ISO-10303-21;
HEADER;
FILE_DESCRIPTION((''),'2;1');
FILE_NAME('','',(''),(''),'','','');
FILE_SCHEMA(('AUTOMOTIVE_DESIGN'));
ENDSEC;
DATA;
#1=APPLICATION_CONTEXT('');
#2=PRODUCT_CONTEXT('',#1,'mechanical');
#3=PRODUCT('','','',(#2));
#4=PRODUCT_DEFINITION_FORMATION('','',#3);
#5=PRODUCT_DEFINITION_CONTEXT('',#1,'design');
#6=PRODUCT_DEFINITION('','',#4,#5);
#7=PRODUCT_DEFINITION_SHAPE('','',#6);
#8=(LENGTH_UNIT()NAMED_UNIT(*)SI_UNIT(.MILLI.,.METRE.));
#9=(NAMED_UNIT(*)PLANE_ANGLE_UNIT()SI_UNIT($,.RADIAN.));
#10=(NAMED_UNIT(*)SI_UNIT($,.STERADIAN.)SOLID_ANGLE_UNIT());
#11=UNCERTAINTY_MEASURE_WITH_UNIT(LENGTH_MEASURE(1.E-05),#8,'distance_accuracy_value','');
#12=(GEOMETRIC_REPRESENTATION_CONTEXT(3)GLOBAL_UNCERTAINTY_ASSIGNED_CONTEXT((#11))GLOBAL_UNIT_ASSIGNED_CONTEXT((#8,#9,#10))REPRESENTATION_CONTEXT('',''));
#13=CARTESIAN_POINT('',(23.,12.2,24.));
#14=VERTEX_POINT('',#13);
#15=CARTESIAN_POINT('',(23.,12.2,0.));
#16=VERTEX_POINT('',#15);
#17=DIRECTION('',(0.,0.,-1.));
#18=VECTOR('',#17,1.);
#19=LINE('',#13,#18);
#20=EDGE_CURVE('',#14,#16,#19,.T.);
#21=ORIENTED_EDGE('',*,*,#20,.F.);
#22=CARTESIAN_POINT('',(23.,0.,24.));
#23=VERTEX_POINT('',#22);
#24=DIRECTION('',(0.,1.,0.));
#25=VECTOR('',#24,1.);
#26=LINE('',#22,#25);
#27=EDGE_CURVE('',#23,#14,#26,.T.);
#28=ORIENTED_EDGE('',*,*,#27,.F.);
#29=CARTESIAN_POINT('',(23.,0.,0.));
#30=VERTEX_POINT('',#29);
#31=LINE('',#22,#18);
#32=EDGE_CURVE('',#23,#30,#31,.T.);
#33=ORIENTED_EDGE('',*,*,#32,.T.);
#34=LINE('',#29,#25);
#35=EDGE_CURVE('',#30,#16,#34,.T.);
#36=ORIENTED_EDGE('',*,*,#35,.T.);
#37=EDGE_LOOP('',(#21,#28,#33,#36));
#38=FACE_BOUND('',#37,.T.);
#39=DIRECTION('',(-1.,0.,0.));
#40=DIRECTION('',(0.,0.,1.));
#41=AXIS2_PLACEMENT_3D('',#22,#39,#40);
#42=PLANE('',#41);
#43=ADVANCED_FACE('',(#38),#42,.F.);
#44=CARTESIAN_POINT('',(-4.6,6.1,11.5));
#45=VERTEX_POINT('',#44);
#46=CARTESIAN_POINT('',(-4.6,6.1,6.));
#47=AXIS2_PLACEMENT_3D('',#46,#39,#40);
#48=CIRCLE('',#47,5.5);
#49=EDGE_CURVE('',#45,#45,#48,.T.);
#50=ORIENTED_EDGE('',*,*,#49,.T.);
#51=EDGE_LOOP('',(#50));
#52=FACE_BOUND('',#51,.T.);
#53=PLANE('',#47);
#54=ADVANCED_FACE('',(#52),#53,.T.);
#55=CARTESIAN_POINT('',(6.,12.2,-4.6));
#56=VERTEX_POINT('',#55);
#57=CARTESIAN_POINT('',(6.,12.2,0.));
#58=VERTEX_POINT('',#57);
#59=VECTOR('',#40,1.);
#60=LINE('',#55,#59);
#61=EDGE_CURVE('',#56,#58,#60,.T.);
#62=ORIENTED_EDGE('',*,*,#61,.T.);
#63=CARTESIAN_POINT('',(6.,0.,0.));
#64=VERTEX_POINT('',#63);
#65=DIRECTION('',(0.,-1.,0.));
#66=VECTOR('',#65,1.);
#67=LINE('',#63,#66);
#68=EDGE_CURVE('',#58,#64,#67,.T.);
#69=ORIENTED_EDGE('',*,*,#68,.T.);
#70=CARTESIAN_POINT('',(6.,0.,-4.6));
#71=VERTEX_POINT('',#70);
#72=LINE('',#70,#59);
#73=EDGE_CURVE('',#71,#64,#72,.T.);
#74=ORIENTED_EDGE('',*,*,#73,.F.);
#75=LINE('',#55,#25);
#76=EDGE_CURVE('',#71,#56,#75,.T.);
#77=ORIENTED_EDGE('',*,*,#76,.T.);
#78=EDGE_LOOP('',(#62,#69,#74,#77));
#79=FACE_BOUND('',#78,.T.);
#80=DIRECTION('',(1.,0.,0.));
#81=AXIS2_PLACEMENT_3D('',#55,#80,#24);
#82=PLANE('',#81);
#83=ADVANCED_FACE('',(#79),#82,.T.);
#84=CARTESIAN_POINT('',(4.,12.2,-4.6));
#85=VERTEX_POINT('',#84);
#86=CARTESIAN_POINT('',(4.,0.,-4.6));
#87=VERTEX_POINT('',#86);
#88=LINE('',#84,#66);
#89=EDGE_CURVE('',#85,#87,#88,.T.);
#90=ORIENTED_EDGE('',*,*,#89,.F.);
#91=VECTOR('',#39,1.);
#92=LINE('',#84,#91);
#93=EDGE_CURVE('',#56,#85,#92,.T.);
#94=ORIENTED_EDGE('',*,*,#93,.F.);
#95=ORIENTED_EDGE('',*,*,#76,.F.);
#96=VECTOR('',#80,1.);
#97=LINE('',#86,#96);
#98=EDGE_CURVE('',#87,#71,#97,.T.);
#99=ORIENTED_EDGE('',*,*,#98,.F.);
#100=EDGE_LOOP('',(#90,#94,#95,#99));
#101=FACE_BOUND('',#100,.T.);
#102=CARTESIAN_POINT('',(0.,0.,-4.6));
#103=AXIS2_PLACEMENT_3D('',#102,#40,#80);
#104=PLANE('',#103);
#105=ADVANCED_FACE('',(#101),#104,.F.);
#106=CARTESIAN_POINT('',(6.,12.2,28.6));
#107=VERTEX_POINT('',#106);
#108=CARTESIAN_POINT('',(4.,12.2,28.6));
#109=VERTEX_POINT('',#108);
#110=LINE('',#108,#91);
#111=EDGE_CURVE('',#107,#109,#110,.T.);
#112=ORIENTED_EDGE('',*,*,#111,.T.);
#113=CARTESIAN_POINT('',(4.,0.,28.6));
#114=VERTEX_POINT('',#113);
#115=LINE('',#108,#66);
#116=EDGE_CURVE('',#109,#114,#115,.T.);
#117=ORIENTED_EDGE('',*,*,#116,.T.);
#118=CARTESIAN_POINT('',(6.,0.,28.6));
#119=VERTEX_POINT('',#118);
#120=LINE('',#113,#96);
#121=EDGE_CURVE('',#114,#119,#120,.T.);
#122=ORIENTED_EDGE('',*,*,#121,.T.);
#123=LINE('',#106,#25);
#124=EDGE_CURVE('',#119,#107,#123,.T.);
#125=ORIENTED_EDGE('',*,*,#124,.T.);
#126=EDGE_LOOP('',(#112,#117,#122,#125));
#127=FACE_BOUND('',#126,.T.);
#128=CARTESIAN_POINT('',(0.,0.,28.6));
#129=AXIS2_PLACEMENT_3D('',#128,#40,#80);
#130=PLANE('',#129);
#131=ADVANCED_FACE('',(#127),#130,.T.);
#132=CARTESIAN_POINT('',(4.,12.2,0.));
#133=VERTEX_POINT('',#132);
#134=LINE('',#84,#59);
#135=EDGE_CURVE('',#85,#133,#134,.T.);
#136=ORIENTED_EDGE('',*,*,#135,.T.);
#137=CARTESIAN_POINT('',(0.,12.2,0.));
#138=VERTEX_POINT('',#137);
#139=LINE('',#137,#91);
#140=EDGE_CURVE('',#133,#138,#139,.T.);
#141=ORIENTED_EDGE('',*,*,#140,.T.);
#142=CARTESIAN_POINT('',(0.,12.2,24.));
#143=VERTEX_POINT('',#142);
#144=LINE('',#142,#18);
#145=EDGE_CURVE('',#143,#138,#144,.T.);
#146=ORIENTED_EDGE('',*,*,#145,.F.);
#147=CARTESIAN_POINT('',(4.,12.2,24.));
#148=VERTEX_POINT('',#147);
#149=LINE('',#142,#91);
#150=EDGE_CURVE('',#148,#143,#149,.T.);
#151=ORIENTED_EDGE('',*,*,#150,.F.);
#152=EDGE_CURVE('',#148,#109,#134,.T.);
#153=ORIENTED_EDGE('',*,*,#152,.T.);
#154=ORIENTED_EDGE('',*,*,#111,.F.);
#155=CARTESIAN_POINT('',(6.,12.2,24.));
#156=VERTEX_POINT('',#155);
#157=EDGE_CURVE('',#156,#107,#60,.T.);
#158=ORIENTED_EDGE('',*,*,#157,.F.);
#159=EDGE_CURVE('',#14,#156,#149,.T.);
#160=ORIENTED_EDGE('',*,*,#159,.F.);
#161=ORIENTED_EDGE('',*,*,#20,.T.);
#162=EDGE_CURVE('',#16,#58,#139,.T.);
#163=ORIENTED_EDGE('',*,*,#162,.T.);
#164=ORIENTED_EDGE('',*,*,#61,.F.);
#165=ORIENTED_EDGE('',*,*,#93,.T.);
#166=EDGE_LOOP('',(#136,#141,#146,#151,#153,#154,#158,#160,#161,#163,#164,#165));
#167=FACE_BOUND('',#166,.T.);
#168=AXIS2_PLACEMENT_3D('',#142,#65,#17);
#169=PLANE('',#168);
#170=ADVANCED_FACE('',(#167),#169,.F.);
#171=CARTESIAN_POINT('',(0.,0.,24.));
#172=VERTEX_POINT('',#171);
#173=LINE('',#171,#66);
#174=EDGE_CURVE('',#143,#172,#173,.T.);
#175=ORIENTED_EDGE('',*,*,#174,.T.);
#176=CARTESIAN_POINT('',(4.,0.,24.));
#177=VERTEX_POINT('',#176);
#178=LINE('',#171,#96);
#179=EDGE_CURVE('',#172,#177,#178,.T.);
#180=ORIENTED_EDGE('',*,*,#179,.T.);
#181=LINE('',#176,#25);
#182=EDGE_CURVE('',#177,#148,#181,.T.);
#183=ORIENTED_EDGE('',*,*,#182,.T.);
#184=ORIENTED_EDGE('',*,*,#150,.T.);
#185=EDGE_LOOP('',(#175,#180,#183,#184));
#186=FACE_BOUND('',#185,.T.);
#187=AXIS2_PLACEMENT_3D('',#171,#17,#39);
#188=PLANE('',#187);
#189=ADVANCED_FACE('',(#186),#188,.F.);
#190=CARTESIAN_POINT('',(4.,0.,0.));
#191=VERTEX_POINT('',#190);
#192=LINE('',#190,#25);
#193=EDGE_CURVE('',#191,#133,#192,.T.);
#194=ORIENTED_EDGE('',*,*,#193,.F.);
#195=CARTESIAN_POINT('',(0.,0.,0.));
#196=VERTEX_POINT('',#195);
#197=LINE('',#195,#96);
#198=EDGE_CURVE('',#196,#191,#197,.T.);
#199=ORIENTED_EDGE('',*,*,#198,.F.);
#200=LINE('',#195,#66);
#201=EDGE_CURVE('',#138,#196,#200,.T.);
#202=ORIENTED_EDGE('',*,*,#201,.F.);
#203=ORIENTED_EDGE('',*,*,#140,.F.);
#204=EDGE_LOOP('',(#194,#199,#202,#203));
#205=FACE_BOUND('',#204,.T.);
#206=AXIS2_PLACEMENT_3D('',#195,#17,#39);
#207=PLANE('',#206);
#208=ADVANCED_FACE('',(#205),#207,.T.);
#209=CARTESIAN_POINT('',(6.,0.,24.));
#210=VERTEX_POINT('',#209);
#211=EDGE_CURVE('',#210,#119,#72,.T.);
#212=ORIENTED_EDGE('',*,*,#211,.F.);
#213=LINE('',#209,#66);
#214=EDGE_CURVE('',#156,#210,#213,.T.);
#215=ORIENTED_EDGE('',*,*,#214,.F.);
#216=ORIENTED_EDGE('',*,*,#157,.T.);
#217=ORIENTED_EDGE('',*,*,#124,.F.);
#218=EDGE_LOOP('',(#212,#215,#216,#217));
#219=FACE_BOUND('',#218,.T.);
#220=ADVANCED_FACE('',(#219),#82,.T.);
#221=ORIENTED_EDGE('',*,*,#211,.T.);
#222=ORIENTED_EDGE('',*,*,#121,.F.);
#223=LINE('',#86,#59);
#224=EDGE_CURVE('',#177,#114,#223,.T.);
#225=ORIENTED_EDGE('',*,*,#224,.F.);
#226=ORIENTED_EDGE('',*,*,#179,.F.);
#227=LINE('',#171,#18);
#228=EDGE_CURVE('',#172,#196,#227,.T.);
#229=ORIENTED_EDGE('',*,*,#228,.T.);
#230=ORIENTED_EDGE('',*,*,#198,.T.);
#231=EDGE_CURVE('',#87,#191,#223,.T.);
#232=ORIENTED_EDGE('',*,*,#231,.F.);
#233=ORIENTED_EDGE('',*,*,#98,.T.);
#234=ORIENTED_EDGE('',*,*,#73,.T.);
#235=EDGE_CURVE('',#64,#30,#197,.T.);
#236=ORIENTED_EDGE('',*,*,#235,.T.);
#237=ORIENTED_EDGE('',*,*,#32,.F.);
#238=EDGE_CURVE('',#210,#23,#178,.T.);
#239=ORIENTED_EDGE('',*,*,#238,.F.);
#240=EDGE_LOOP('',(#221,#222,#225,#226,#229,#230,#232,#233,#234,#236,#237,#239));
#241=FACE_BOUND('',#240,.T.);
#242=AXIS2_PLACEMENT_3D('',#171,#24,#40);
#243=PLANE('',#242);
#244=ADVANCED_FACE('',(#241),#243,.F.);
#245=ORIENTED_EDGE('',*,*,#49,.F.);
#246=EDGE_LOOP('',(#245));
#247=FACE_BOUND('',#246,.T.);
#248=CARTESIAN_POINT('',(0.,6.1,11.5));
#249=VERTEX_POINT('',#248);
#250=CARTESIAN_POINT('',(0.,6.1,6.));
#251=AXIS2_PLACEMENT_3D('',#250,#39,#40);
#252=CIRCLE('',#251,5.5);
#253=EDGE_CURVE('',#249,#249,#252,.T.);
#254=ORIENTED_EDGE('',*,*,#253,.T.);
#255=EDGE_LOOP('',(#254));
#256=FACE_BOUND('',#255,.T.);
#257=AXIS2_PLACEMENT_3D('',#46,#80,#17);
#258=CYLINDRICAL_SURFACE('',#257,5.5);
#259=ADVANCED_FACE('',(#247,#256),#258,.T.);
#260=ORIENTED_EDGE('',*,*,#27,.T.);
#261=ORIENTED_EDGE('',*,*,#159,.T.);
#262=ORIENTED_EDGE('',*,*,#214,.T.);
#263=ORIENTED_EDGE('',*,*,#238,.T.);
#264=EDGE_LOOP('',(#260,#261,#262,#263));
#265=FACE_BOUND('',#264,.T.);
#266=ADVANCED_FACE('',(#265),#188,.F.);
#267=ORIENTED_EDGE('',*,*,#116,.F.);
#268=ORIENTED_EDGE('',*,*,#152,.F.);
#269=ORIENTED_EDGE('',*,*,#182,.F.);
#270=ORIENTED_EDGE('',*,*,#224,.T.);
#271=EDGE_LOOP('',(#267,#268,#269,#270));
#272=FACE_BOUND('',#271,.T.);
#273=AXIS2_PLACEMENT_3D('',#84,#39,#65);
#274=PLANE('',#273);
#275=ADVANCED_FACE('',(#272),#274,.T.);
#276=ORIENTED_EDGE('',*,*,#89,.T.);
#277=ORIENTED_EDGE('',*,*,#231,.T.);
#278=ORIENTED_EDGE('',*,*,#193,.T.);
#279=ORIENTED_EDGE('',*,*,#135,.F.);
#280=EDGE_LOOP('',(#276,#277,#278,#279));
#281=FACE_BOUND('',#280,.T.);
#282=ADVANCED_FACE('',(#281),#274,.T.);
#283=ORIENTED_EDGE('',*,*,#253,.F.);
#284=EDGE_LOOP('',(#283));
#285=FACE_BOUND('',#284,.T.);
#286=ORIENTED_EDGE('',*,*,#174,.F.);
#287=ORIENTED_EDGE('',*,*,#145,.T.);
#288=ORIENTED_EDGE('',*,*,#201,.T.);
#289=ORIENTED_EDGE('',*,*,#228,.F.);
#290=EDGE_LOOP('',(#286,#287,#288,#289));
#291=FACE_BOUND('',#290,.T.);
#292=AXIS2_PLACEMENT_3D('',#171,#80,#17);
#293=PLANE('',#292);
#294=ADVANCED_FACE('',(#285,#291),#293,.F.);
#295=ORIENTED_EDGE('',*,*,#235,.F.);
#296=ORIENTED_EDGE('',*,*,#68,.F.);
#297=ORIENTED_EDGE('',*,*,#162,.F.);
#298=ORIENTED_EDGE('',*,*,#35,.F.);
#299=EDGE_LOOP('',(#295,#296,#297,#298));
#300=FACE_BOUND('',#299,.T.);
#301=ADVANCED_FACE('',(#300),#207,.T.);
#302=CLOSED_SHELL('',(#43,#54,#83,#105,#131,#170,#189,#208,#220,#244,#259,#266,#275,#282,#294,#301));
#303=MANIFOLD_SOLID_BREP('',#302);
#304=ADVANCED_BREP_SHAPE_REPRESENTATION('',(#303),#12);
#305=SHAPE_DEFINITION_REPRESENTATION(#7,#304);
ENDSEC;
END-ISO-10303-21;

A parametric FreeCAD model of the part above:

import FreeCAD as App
import Part
import Sketcher
from FreeCAD import Vector
Q = App.Units.Quantity


def add_polygon(sketch, points):
    """Adds a closed chain of lines whose ends are joined by coincident constraints."""
    first, n = sketch.GeometryCount, len(points)
    for a, b in zip(points, points[1:] + points[:1]):
        sketch.addGeometry(Part.LineSegment(App.Vector(*a, 0), App.Vector(*b, 0)), False)
    for i in range(n):
        sketch.addConstraint(Sketcher.Constraint("Coincident", first + i, 2, first + (i + 1) % n, 1))

doc = App.newDocument("Part")
params = doc.addObject("Spreadsheet::Sheet", "Params")
for row, (alias, value) in enumerate([
    ("sketch1_width", "23 mm"),
    ("sketch1_height", "12.2 mm"),
    ("pad1_length", "24 mm"),
    ("sketch2_width", "2 mm"),
    ("sketch2_height", "12.2 mm"),
    ("pad2_length", "4.6 mm"),
    ("pad2_length2", "28.6 mm"),
    ("sketch3_diameter", "11 mm"),
    ("pad3_length", "4.6 mm"),
], start=1):
    params.set(f"A{row}", alias)
    params.set(f"B{row}", "=" + value)
    params.setAlias(f"B{row}", alias)

body = doc.addObject("PartDesign::Body", "Body")

# Sketch on XY plane
sketch1 = doc.addObject("Sketcher::SketchObject", "Sketch")
body.addObject(sketch1)
sketch1.AttachmentSupport = (doc.XY_Plane, [""])
sketch1.MapMode = "FlatFace"
add_polygon(sketch1, [(0, 12), (0, 0), (23, 0), (23, 12)])  # lines 0-3
sketch1.addConstraint([
    Sketcher.Constraint("Vertical", 0),
    Sketcher.Constraint("Horizontal", 1),
    Sketcher.Constraint("Vertical", 2),
    Sketcher.Constraint("Horizontal", 3),
    Sketcher.Constraint("Coincident", 0, 2, -1, 1),
    Sketcher.Constraint("DistanceX", 1, 1, 1, 2, Q("23 mm")),
    Sketcher.Constraint("DistanceY", 0, 2, 0, 1, Q("12.2 mm")),
])
sketch1.setExpression("Constraints[9]", "Params.sketch1_width")
sketch1.setExpression("Constraints[10]", "Params.sketch1_height")
pad1 = doc.addObject("PartDesign::Pad", "Pad")
body.addObject(pad1)
pad1.Profile = sketch1
pad1.setExpression("Length", "Params.pad1_length")

# Sketch on XY plane
sketch2 = doc.addObject("Sketcher::SketchObject", "Sketch001")
body.addObject(sketch2)
sketch2.AttachmentSupport = (doc.XY_Plane, [""])
sketch2.MapMode = "FlatFace"
sketch2.AttachmentOffset = App.Placement(Vector(0, 0, 24), App.Rotation())
add_polygon(sketch2, [(4, 12.2), (4, 0), (6, 0), (6, 12.2)])  # lines 0-3
sketch2.addConstraint([
    Sketcher.Constraint("Vertical", 0),
    Sketcher.Constraint("Horizontal", 1),
    Sketcher.Constraint("Vertical", 2),
    Sketcher.Constraint("Horizontal", 3),
    Sketcher.Constraint("PointOnObject", 0, 2, -1),
    Sketcher.Constraint("DistanceX", 1, 1, 1, 2, Q("2 mm")),
    Sketcher.Constraint("DistanceY", 0, 2, 0, 1, Q("12.2 mm")),
    Sketcher.Constraint("DistanceX", -1, 1, 0, 2, Q("4 mm")),
])
sketch2.setExpression("Constraints[9]", "Params.sketch2_width")
sketch2.setExpression("Constraints[10]", "Params.sketch2_height")
pad2 = doc.addObject("PartDesign::Pad", "Pad001")
body.addObject(pad2)
pad2.Profile = sketch2
pad2.Type = "TwoLengths"
pad2.setExpression("Length", "Params.pad2_length")
pad2.setExpression("Length2", "Params.pad2_length2")

# Sketch on YZ plane
sketch3 = doc.addObject("Sketcher::SketchObject", "Sketch002")
body.addObject(sketch3)
sketch3.AttachmentSupport = (doc.YZ_Plane, [""])
sketch3.MapMode = "FlatFace"
sketch3.addGeometry(Part.Circle(Vector(6, 6, 0), Vector(0, 0, 1), 6), False)
sketch3.addConstraint([
    Sketcher.Constraint("Diameter", 0, Q("11 mm")),
    Sketcher.Constraint("DistanceY", -1, 1, 0, 3, Q("6 mm")),
    Sketcher.Constraint("DistanceX", -1, 1, 0, 3, Q("6.1 mm")),
])
sketch3.setExpression("Constraints[0]", "Params.sketch3_diameter")
pad3 = doc.addObject("PartDesign::Pad", "Pad002")
body.addObject(pad3)
pad3.Profile = sketch3
pad3.setExpression("Length", "Params.pad3_length")
pad3.Reversed = True

doc.recompute()
